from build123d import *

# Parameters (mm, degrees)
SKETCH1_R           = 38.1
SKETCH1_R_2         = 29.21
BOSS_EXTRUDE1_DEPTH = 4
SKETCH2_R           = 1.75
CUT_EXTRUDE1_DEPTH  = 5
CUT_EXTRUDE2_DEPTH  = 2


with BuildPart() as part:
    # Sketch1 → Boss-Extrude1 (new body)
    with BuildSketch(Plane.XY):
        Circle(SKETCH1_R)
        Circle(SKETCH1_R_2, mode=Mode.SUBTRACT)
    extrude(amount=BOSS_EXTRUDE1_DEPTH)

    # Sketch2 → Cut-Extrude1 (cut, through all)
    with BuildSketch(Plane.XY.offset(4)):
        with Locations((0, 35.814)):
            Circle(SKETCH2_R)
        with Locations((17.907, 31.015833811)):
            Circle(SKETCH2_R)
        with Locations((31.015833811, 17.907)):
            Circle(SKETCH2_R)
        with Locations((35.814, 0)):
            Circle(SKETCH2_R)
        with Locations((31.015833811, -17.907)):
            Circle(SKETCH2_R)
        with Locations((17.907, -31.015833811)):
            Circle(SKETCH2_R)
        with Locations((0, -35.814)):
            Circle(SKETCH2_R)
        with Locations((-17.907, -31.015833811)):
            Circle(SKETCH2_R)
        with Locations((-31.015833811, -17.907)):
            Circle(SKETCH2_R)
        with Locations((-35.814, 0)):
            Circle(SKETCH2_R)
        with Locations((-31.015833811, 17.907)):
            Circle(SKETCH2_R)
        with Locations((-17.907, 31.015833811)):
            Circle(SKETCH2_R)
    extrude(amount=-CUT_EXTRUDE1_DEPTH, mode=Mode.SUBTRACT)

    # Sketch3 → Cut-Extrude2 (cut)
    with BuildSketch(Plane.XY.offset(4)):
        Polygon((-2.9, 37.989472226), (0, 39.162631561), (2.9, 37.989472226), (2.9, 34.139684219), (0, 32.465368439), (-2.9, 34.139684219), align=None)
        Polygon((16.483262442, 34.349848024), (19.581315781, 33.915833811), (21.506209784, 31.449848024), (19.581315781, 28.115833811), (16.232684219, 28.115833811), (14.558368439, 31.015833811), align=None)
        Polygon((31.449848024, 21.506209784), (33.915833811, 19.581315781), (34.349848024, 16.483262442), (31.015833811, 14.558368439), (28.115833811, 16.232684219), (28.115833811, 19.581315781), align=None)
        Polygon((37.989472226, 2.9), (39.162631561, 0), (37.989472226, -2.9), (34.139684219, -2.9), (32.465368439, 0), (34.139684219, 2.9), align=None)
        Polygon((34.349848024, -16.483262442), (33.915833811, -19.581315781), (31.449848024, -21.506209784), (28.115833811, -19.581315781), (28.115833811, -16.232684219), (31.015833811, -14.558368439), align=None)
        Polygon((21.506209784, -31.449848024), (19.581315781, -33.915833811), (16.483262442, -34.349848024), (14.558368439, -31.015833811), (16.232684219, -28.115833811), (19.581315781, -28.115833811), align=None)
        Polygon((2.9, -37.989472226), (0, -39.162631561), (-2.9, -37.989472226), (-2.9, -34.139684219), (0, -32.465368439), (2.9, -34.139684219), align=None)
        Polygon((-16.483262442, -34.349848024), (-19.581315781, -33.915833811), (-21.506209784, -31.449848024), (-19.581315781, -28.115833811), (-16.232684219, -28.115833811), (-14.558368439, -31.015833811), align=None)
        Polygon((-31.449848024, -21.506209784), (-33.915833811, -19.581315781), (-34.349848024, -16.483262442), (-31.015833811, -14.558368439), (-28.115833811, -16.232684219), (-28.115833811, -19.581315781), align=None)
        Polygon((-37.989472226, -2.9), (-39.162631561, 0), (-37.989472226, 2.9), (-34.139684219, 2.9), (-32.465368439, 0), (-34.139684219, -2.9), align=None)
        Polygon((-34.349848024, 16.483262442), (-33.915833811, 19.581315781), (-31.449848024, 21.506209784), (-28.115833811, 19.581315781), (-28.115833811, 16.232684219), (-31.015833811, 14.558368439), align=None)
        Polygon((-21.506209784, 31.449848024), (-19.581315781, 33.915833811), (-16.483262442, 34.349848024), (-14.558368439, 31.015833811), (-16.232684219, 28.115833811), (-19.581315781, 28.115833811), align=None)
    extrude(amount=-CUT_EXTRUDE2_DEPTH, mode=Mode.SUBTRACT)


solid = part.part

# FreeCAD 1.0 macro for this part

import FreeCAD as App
import Part
import Sketcher
Q = App.Units.Quantity

doc = App.newDocument("Part")
params = doc.addObject("Spreadsheet::Sheet", "Params")
for row, (alias, value) in enumerate([
    ("sketch1_diameter", "76.2 mm"),
    ("sketch1_diameter2", "58.42 mm"),
    ("pad1_length", "4 mm"),
    ("sketch2_diameter", "3.5 mm"),
    ("pocket2_length", "2 mm"),
], start=1):
    params.set(f"A{row}", alias)
    params.set(f"B{row}", "=" + value)
    params.setAlias(f"B{row}", alias)

body = doc.addObject("PartDesign::Body", "Body")

sketch1 = body.newObject("Sketcher::SketchObject", "Sketch")
sketch1.AttachmentSupport = (doc.getObject("XY_Plane"), [""])
sketch1.MapMode = "FlatFace"
sketch1.addGeometry([
    Part.Circle(App.Vector(0, 0, 0), App.Vector(0, 0, 1), 38),
    Part.Circle(App.Vector(0, 0, 0), App.Vector(0, 0, 1), 29),
], False)
sketch1.addConstraint([
    Sketcher.Constraint("Coincident", 0, 3, -1, 1),
    Sketcher.Constraint("Coincident", 1, 3, -1, 1),
    Sketcher.Constraint("Diameter", 0, 76.2),
    Sketcher.Constraint("Diameter", 1, 58.42),
])
sketch1.setExpression("Constraints[2]", "Params.sketch1_diameter")
sketch1.setExpression("Constraints[3]", "Params.sketch1_diameter2")
pad1 = body.newObject("PartDesign::Pad", "Pad")
pad1.Profile = sketch1
pad1.setExpression("Length", "Params.pad1_length")

sketch2 = body.newObject("Sketcher::SketchObject", "Sketch001")
sketch2.AttachmentSupport = (doc.getObject("XY_Plane"), [""])
sketch2.MapMode = "FlatFace"
sketch2.AttachmentOffset = App.Placement(App.Vector(0, 0, 4), App.Rotation())
sketch2.addGeometry([
    Part.Circle(App.Vector(0, 35.8, 0), App.Vector(0, 0, 1), 1.8),
    Part.Circle(App.Vector(17.9, 31, 0), App.Vector(0, 0, 1), 1.8),
    Part.Circle(App.Vector(31, 17.9, 0), App.Vector(0, 0, 1), 1.8),
    Part.Circle(App.Vector(35.8, 0, 0), App.Vector(0, 0, 1), 1.8),
    Part.Circle(App.Vector(31, -17.9, 0), App.Vector(0, 0, 1), 1.8),
    Part.Circle(App.Vector(17.9, -31, 0), App.Vector(0, 0, 1), 1.8),
    Part.Circle(App.Vector(0, -35.8, 0), App.Vector(0, 0, 1), 1.8),
    Part.Circle(App.Vector(-17.9, -31, 0), App.Vector(0, 0, 1), 1.8),
    Part.Circle(App.Vector(-31, -17.9, 0), App.Vector(0, 0, 1), 1.8),
    Part.Circle(App.Vector(-35.8, 0, 0), App.Vector(0, 0, 1), 1.8),
    Part.Circle(App.Vector(-31, 17.9, 0), App.Vector(0, 0, 1), 1.8),
    Part.Circle(App.Vector(-17.9, 31, 0), App.Vector(0, 0, 1), 1.8),
], False)
sketch2.addConstraint([
    Sketcher.Constraint("Equal", 0, 1),
    Sketcher.Constraint("Equal", 1, 2),
    Sketcher.Constraint("Equal", 2, 3),
    Sketcher.Constraint("Equal", 3, 4),
    Sketcher.Constraint("Equal", 4, 5),
    Sketcher.Constraint("Equal", 5, 6),
    Sketcher.Constraint("Equal", 6, 7),
    Sketcher.Constraint("Equal", 7, 8),
    Sketcher.Constraint("Equal", 8, 9),
    Sketcher.Constraint("Equal", 9, 10),
    Sketcher.Constraint("Equal", 10, 11),
    Sketcher.Constraint("Symmetric", 0, 3, 6, 3, -1, 1),
    Sketcher.Constraint("Symmetric", 1, 3, 7, 3, -1, 1),
    Sketcher.Constraint("Symmetric", 2, 3, 8, 3, -1, 1),
    Sketcher.Constraint("Symmetric", 3, 3, 9, 3, -1, 1),
    Sketcher.Constraint("Symmetric", 4, 3, 10, 3, -1, 1),
    Sketcher.Constraint("Symmetric", 5, 3, 11, 3, -1, 1),
    Sketcher.Constraint("Symmetric", 5, 3, 7, 3, -2),
    Sketcher.Constraint("Symmetric", 4, 3, 8, 3, -2),
    Sketcher.Constraint("PointOnObject", 0, 3, -2),
    Sketcher.Constraint("PointOnObject", 3, 3, -1),
    Sketcher.Constraint("Diameter", 0, 3.5),
    Sketcher.Constraint("DistanceY", -1, 1, 0, 3, 35.814),
    Sketcher.Constraint("DistanceX", -1, 1, 1, 3, 17.907),
    Sketcher.Constraint("DistanceY", -1, 1, 2, 3, 17.907),
    Sketcher.Constraint("DistanceX", -1, 1, 3, 3, 35.814),
    Sketcher.Constraint("DistanceY", -1, 1, 1, 3, 31.015834),
    Sketcher.Constraint("DistanceX", -1, 1, 2, 3, 31.015834),
])
sketch2.setExpression("Constraints[21]", "Params.sketch2_diameter")
pocket1 = body.newObject("PartDesign::Pocket", "Pocket")
pocket1.Profile = sketch2
pocket1.Type = "ThroughAll"

sketch3 = body.newObject("Sketcher::SketchObject", "Sketch002")
sketch3.AttachmentSupport = (doc.getObject("XY_Plane"), [""])
sketch3.MapMode = "FlatFace"
sketch3.AttachmentOffset = App.Placement(App.Vector(0, 0, 4), App.Rotation())
sketch3.addGeometry([
    Part.LineSegment(App.Vector(0, 39.2, 0), App.Vector(-2.9, 38, 0)),
    Part.LineSegment(App.Vector(-2.9, 38, 0), App.Vector(-2.9, 34.1, 0)),
    Part.LineSegment(App.Vector(-2.9, 34.1, 0), App.Vector(0, 32.5, 0)),
    Part.LineSegment(App.Vector(0, 32.5, 0), App.Vector(2.9, 34.1, 0)),
    Part.LineSegment(App.Vector(2.9, 34.1, 0), App.Vector(2.9, 38, 0)),
    Part.LineSegment(App.Vector(2.9, 38, 0), App.Vector(0, 39.2, 0)),
    Part.LineSegment(App.Vector(19.6, 33.9, 0), App.Vector(16.5, 34.3, 0)),
    Part.LineSegment(App.Vector(16.5, 34.3, 0), App.Vector(14.6, 31, 0)),
    Part.LineSegment(App.Vector(14.6, 31, 0), App.Vector(16.2, 28.1, 0)),
    Part.LineSegment(App.Vector(16.2, 28.1, 0), App.Vector(19.6, 28.1, 0)),
    Part.LineSegment(App.Vector(19.6, 28.1, 0), App.Vector(21.5, 31.4, 0)),
    Part.LineSegment(App.Vector(21.5, 31.4, 0), App.Vector(19.6, 33.9, 0)),
    Part.LineSegment(App.Vector(33.9, 19.6, 0), App.Vector(31.4, 21.5, 0)),
    Part.LineSegment(App.Vector(31.4, 21.5, 0), App.Vector(28.1, 19.6, 0)),
    Part.LineSegment(App.Vector(28.1, 19.6, 0), App.Vector(28.1, 16.2, 0)),
    Part.LineSegment(App.Vector(28.1, 16.2, 0), App.Vector(31, 14.6, 0)),
    Part.LineSegment(App.Vector(31, 14.6, 0), App.Vector(34.3, 16.5, 0)),
    Part.LineSegment(App.Vector(34.3, 16.5, 0), App.Vector(33.9, 19.6, 0)),
    Part.LineSegment(App.Vector(39.2, 0, 0), App.Vector(38, 2.9, 0)),
    Part.LineSegment(App.Vector(38, 2.9, 0), App.Vector(34.1, 2.9, 0)),
    Part.LineSegment(App.Vector(34.1, 2.9, 0), App.Vector(32.5, 0, 0)),
    Part.LineSegment(App.Vector(32.5, 0, 0), App.Vector(34.1, -2.9, 0)),
    Part.LineSegment(App.Vector(34.1, -2.9, 0), App.Vector(38, -2.9, 0)),
    Part.LineSegment(App.Vector(38, -2.9, 0), App.Vector(39.2, 0, 0)),
    Part.LineSegment(App.Vector(33.9, -19.6, 0), App.Vector(34.3, -16.5, 0)),
    Part.LineSegment(App.Vector(34.3, -16.5, 0), App.Vector(31, -14.6, 0)),
    Part.LineSegment(App.Vector(31, -14.6, 0), App.Vector(28.1, -16.2, 0)),
    Part.LineSegment(App.Vector(28.1, -16.2, 0), App.Vector(28.1, -19.6, 0)),
    Part.LineSegment(App.Vector(28.1, -19.6, 0), App.Vector(31.4, -21.5, 0)),
    Part.LineSegment(App.Vector(31.4, -21.5, 0), App.Vector(33.9, -19.6, 0)),
    Part.LineSegment(App.Vector(19.6, -33.9, 0), App.Vector(21.5, -31.4, 0)),
    Part.LineSegment(App.Vector(21.5, -31.4, 0), App.Vector(19.6, -28.1, 0)),
    Part.LineSegment(App.Vector(19.6, -28.1, 0), App.Vector(16.2, -28.1, 0)),
    Part.LineSegment(App.Vector(16.2, -28.1, 0), App.Vector(14.6, -31, 0)),
    Part.LineSegment(App.Vector(14.6, -31, 0), App.Vector(16.5, -34.3, 0)),
    Part.LineSegment(App.Vector(16.5, -34.3, 0), App.Vector(19.6, -33.9, 0)),
    Part.LineSegment(App.Vector(0, -39.2, 0), App.Vector(2.9, -38, 0)),
    Part.LineSegment(App.Vector(2.9, -38, 0), App.Vector(2.9, -34.1, 0)),
    Part.LineSegment(App.Vector(2.9, -34.1, 0), App.Vector(0, -32.5, 0)),
    Part.LineSegment(App.Vector(0, -32.5, 0), App.Vector(-2.9, -34.1, 0)),
    Part.LineSegment(App.Vector(-2.9, -34.1, 0), App.Vector(-2.9, -38, 0)),
    Part.LineSegment(App.Vector(-2.9, -38, 0), App.Vector(0, -39.2, 0)),
    Part.LineSegment(App.Vector(-19.6, -33.9, 0), App.Vector(-16.5, -34.3, 0)),
    Part.LineSegment(App.Vector(-16.5, -34.3, 0), App.Vector(-14.6, -31, 0)),
    Part.LineSegment(App.Vector(-14.6, -31, 0), App.Vector(-16.2, -28.1, 0)),
    Part.LineSegment(App.Vector(-16.2, -28.1, 0), App.Vector(-19.6, -28.1, 0)),
    Part.LineSegment(App.Vector(-19.6, -28.1, 0), App.Vector(-21.5, -31.4, 0)),
    Part.LineSegment(App.Vector(-21.5, -31.4, 0), App.Vector(-19.6, -33.9, 0)),
    Part.LineSegment(App.Vector(-33.9, -19.6, 0), App.Vector(-31.4, -21.5, 0)),
    Part.LineSegment(App.Vector(-31.4, -21.5, 0), App.Vector(-28.1, -19.6, 0)),
    Part.LineSegment(App.Vector(-28.1, -19.6, 0), App.Vector(-28.1, -16.2, 0)),
    Part.LineSegment(App.Vector(-28.1, -16.2, 0), App.Vector(-31, -14.6, 0)),
    Part.LineSegment(App.Vector(-31, -14.6, 0), App.Vector(-34.3, -16.5, 0)),
    Part.LineSegment(App.Vector(-34.3, -16.5, 0), App.Vector(-33.9, -19.6, 0)),
    Part.LineSegment(App.Vector(-39.2, 0, 0), App.Vector(-38, -2.9, 0)),
    Part.LineSegment(App.Vector(-38, -2.9, 0), App.Vector(-34.1, -2.9, 0)),
    Part.LineSegment(App.Vector(-34.1, -2.9, 0), App.Vector(-32.5, 0, 0)),
    Part.LineSegment(App.Vector(-32.5, 0, 0), App.Vector(-34.1, 2.9, 0)),
    Part.LineSegment(App.Vector(-34.1, 2.9, 0), App.Vector(-38, 2.9, 0)),
    Part.LineSegment(App.Vector(-38, 2.9, 0), App.Vector(-39.2, 0, 0)),
    Part.LineSegment(App.Vector(-33.9, 19.6, 0), App.Vector(-34.3, 16.5, 0)),
    Part.LineSegment(App.Vector(-34.3, 16.5, 0), App.Vector(-31, 14.6, 0)),
    Part.LineSegment(App.Vector(-31, 14.6, 0), App.Vector(-28.1, 16.2, 0)),
    Part.LineSegment(App.Vector(-28.1, 16.2, 0), App.Vector(-28.1, 19.6, 0)),
    Part.LineSegment(App.Vector(-28.1, 19.6, 0), App.Vector(-31.4, 21.5, 0)),
    Part.LineSegment(App.Vector(-31.4, 21.5, 0), App.Vector(-33.9, 19.6, 0)),
    Part.LineSegment(App.Vector(-19.6, 33.9, 0), App.Vector(-21.5, 31.4, 0)),
    Part.LineSegment(App.Vector(-21.5, 31.4, 0), App.Vector(-19.6, 28.1, 0)),
    Part.LineSegment(App.Vector(-19.6, 28.1, 0), App.Vector(-16.2, 28.1, 0)),
    Part.LineSegment(App.Vector(-16.2, 28.1, 0), App.Vector(-14.6, 31, 0)),
    Part.LineSegment(App.Vector(-14.6, 31, 0), App.Vector(-16.5, 34.3, 0)),
    Part.LineSegment(App.Vector(-16.5, 34.3, 0), App.Vector(-19.6, 33.9, 0)),
], False)
sketch3.addConstraint([
    Sketcher.Constraint("Coincident", 0, 2, 1, 1),
    Sketcher.Constraint("Coincident", 1, 2, 2, 1),
    Sketcher.Constraint("Coincident", 2, 2, 3, 1),
    Sketcher.Constraint("Coincident", 3, 2, 4, 1),
    Sketcher.Constraint("Coincident", 4, 2, 5, 1),
    Sketcher.Constraint("Coincident", 5, 2, 0, 1),
    Sketcher.Constraint("Coincident", 6, 2, 7, 1),
    Sketcher.Constraint("Coincident", 7, 2, 8, 1),
    Sketcher.Constraint("Coincident", 8, 2, 9, 1),
    Sketcher.Constraint("Coincident", 9, 2, 10, 1),
    Sketcher.Constraint("Coincident", 10, 2, 11, 1),
    Sketcher.Constraint("Coincident", 11, 2, 6, 1),
    Sketcher.Constraint("Coincident", 12, 2, 13, 1),
    Sketcher.Constraint("Coincident", 13, 2, 14, 1),
    Sketcher.Constraint("Coincident", 14, 2, 15, 1),
    Sketcher.Constraint("Coincident", 15, 2, 16, 1),
    Sketcher.Constraint("Coincident", 16, 2, 17, 1),
    Sketcher.Constraint("Coincident", 17, 2, 12, 1),
    Sketcher.Constraint("Coincident", 18, 2, 19, 1),
    Sketcher.Constraint("Coincident", 19, 2, 20, 1),
    Sketcher.Constraint("Coincident", 20, 2, 21, 1),
    Sketcher.Constraint("Coincident", 21, 2, 22, 1),
    Sketcher.Constraint("Coincident", 22, 2, 23, 1),
    Sketcher.Constraint("Coincident", 23, 2, 18, 1),
    Sketcher.Constraint("Coincident", 24, 2, 25, 1),
    Sketcher.Constraint("Coincident", 25, 2, 26, 1),
    Sketcher.Constraint("Coincident", 26, 2, 27, 1),
    Sketcher.Constraint("Coincident", 27, 2, 28, 1),
    Sketcher.Constraint("Coincident", 28, 2, 29, 1),
    Sketcher.Constraint("Coincident", 29, 2, 24, 1),
    Sketcher.Constraint("Coincident", 30, 2, 31, 1),
    Sketcher.Constraint("Coincident", 31, 2, 32, 1),
    Sketcher.Constraint("Coincident", 32, 2, 33, 1),
    Sketcher.Constraint("Coincident", 33, 2, 34, 1),
    Sketcher.Constraint("Coincident", 34, 2, 35, 1),
    Sketcher.Constraint("Coincident", 35, 2, 30, 1),
    Sketcher.Constraint("Coincident", 36, 2, 37, 1),
    Sketcher.Constraint("Coincident", 37, 2, 38, 1),
    Sketcher.Constraint("Coincident", 38, 2, 39, 1),
    Sketcher.Constraint("Coincident", 39, 2, 40, 1),
    Sketcher.Constraint("Coincident", 40, 2, 41, 1),
    Sketcher.Constraint("Coincident", 41, 2, 36, 1),
    Sketcher.Constraint("Coincident", 42, 2, 43, 1),
    Sketcher.Constraint("Coincident", 43, 2, 44, 1),
    Sketcher.Constraint("Coincident", 44, 2, 45, 1),
    Sketcher.Constraint("Coincident", 45, 2, 46, 1),
    Sketcher.Constraint("Coincident", 46, 2, 47, 1),
    Sketcher.Constraint("Coincident", 47, 2, 42, 1),
    Sketcher.Constraint("Coincident", 48, 2, 49, 1),
    Sketcher.Constraint("Coincident", 49, 2, 50, 1),
    Sketcher.Constraint("Coincident", 50, 2, 51, 1),
    Sketcher.Constraint("Coincident", 51, 2, 52, 1),
    Sketcher.Constraint("Coincident", 52, 2, 53, 1),
    Sketcher.Constraint("Coincident", 53, 2, 48, 1),
    Sketcher.Constraint("Coincident", 54, 2, 55, 1),
    Sketcher.Constraint("Coincident", 55, 2, 56, 1),
    Sketcher.Constraint("Coincident", 56, 2, 57, 1),
    Sketcher.Constraint("Coincident", 57, 2, 58, 1),
    Sketcher.Constraint("Coincident", 58, 2, 59, 1),
    Sketcher.Constraint("Coincident", 59, 2, 54, 1),
    Sketcher.Constraint("Coincident", 60, 2, 61, 1),
    Sketcher.Constraint("Coincident", 61, 2, 62, 1),
    Sketcher.Constraint("Coincident", 62, 2, 63, 1),
    Sketcher.Constraint("Coincident", 63, 2, 64, 1),
    Sketcher.Constraint("Coincident", 64, 2, 65, 1),
    Sketcher.Constraint("Coincident", 65, 2, 60, 1),
    Sketcher.Constraint("Coincident", 66, 2, 67, 1),
    Sketcher.Constraint("Coincident", 67, 2, 68, 1),
    Sketcher.Constraint("Coincident", 68, 2, 69, 1),
    Sketcher.Constraint("Coincident", 69, 2, 70, 1),
    Sketcher.Constraint("Coincident", 70, 2, 71, 1),
    Sketcher.Constraint("Coincident", 71, 2, 66, 1),
    Sketcher.Constraint("Vertical", 1),
    Sketcher.Constraint("Vertical", 4),
    Sketcher.Constraint("Horizontal", 9),
    Sketcher.Constraint("Vertical", 14),
    Sketcher.Constraint("Horizontal", 19),
    Sketcher.Constraint("Horizontal", 22),
    Sketcher.Constraint("Vertical", 27),
    Sketcher.Constraint("Horizontal", 32),
    Sketcher.Constraint("Vertical", 37),
    Sketcher.Constraint("Vertical", 40),
    Sketcher.Constraint("Horizontal", 45),
    Sketcher.Constraint("Vertical", 50),
    Sketcher.Constraint("Horizontal", 55),
    Sketcher.Constraint("Horizontal", 58),
    Sketcher.Constraint("Vertical", 63),
    Sketcher.Constraint("Horizontal", 68),
    Sketcher.Constraint("Symmetric", 0, 2, 36, 2, -1, 1),
    Sketcher.Constraint("Symmetric", 2, 2, 38, 2, -1, 1),
    Sketcher.Constraint("Symmetric", 3, 2, 39, 2, -1, 1),
    Sketcher.Constraint("Symmetric", 5, 2, 41, 2, -1, 1),
    Sketcher.Constraint("Symmetric", 6, 2, 42, 2, -1, 1),
    Sketcher.Constraint("Symmetric", 7, 2, 43, 2, -1, 1),
    Sketcher.Constraint("Symmetric", 8, 2, 44, 2, -1, 1),
    Sketcher.Constraint("Symmetric", 10, 2, 46, 2, -1, 1),
    Sketcher.Constraint("Symmetric", 11, 2, 47, 2, -1, 1),
    Sketcher.Constraint("Symmetric", 12, 2, 48, 2, -1, 1),
    Sketcher.Constraint("Symmetric", 13, 2, 49, 2, -1, 1),
    Sketcher.Constraint("Symmetric", 15, 2, 51, 2, -1, 1),
    Sketcher.Constraint("Symmetric", 16, 2, 52, 2, -1, 1),
    Sketcher.Constraint("Symmetric", 17, 2, 53, 2, -1, 1),
    Sketcher.Constraint("Symmetric", 18, 2, 54, 2, -1, 1),
    Sketcher.Constraint("Symmetric", 20, 2, 56, 2, -1, 1),
    Sketcher.Constraint("Symmetric", 21, 2, 57, 2, -1, 1),
    Sketcher.Constraint("Symmetric", 23, 2, 59, 2, -1, 1),
    Sketcher.Constraint("Symmetric", 24, 2, 60, 2, -1, 1),
    Sketcher.Constraint("Symmetric", 25, 2, 61, 2, -1, 1),
    Sketcher.Constraint("Symmetric", 26, 2, 62, 2, -1, 1),
    Sketcher.Constraint("Symmetric", 28, 2, 64, 2, -1, 1),
    Sketcher.Constraint("Symmetric", 29, 2, 65, 2, -1, 1),
    Sketcher.Constraint("Symmetric", 30, 2, 66, 2, -1, 1),
    Sketcher.Constraint("Symmetric", 31, 2, 67, 2, -1, 1),
    Sketcher.Constraint("Symmetric", 33, 2, 69, 2, -1, 1),
    Sketcher.Constraint("Symmetric", 34, 2, 70, 2, -1, 1),
    Sketcher.Constraint("Symmetric", 35, 2, 71, 2, -1, 1),
    Sketcher.Constraint("Symmetric", 1, 2, 3, 2, -2),
    Sketcher.Constraint("Symmetric", 34, 2, 42, 2, -2),
    Sketcher.Constraint("Symmetric", 33, 2, 43, 2, -2),
    Sketcher.Constraint("Symmetric", 32, 2, 44, 2, -2),
    Sketcher.Constraint("Symmetric", 30, 2, 46, 2, -2),
    Sketcher.Constraint("Symmetric", 35, 2, 47, 2, -2),
    Sketcher.Constraint("Symmetric", 28, 2, 48, 2, -2),
    Sketcher.Constraint("Symmetric", 27, 2, 49, 2, -2),
    Sketcher.Constraint("Symmetric", 25, 2, 51, 2, -2),
    Sketcher.Constraint("Symmetric", 24, 2, 52, 2, -2),
    Sketcher.Constraint("Symmetric", 29, 2, 53, 2, -2),
    Sketcher.Constraint("Symmetric", 22, 2, 54, 2, -2),
    Sketcher.Constraint("PointOnObject", 2, 2, -2),
    Sketcher.Constraint("PointOnObject", 5, 2, -2),
    Sketcher.Constraint("PointOnObject", 20, 2, -1),
    Sketcher.Constraint("PointOnObject", 23, 2, -1),
    Sketcher.Constraint("Perpendicular", 2, 7),
    Sketcher.Constraint("Perpendicular", 3, 8),
    Sketcher.Constraint("Parallel", 7, 10),
    Sketcher.Constraint("Perpendicular", 8, 13),
    Sketcher.Constraint("Perpendicular", 10, 15),
    Sketcher.Constraint("Parallel", 13, 16),
    Sketcher.Constraint("Perpendicular", 0, 18),
    Sketcher.Constraint("Perpendicular", 15, 20),
    Sketcher.Constraint("Perpendicular", 16, 21),
    Sketcher.Constraint("Perpendicular", 5, 23),
    Sketcher.Constraint("Perpendicular", 6, 24),
    Sketcher.Constraint("Perpendicular", 21, 26),
    Sketcher.Constraint("Perpendicular", 11, 29),
    Sketcher.Constraint("Perpendicular", 26, 31),
    Sketcher.Constraint("Perpendicular", 33, 38),
    Sketcher.Constraint("Perpendicular", 23, 41),
    Sketcher.Constraint("Parallel", 43, 46),
    Sketcher.Constraint("Perpendicular", 46, 51),
    Sketcher.Constraint("Perpendicular", 51, 56),
    Sketcher.Constraint("Perpendicular", 41, 59),
    Sketcher.Constraint("Parallel", 61, 64),
    Sketcher.Constraint("Perpendicular", 64, 69),
    Sketcher.Constraint("Horizontal", 13, 2, 17, 2),
    Sketcher.Constraint("Vertical", 9, 2, 11, 2),
    Sketcher.Constraint("Equal", 58, 1),
    Sketcher.Constraint("Equal", 68, 14),
    Sketcher.Constraint("Equal", 5, 6),
    Sketcher.Constraint("Equal", 3, 8),
    Sketcher.Constraint("Equal", 7, 10),
    Sketcher.Constraint("Equal", 6, 11),
    Sketcher.Constraint("Equal", 11, 12),
    Sketcher.Constraint("Equal", 8, 15),
    Sketcher.Constraint("Equal", 17, 18),
    Sketcher.Constraint("Angle", 2, Q("-30 deg")),
    Sketcher.Constraint("DistanceX", 0, 2, -1, 1, 2.9),
    Sketcher.Constraint("DistanceX", 9, 1, 9, 2, 3.348632),
    Sketcher.Constraint("DistanceX", 19, 2, 19, 1, 3.849788),
    Sketcher.Constraint("Distance", 7, 3.849788),
    Sketcher.Constraint("DistanceY", -1, 1, 2, 2, 32.465368),
    Sketcher.Constraint("DistanceY", -1, 1, 6, 2, 34.349848),
    Sketcher.Constraint("DistanceX", -1, 1, 7, 2, 14.558368),
    Sketcher.Constraint("DistanceX", -1, 1, 12, 2, 31.449848),
    Sketcher.Constraint("DistanceY", -1, 1, 12, 2, 21.50621),
    Sketcher.Constraint("DistanceX", -1, 1, 20, 2, 32.465368),
])
pocket2 = body.newObject("PartDesign::Pocket", "Pocket001")
pocket2.Profile = sketch3
pocket2.setExpression("Length", "Params.pocket2_length")

doc.recompute()
